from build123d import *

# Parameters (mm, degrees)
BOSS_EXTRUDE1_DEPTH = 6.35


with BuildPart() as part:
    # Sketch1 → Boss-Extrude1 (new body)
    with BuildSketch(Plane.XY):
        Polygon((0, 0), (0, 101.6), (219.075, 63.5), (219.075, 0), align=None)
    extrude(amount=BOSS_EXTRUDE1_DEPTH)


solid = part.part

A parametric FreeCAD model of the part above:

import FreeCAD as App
import Part
import Sketcher
from FreeCAD import Vector
Q = App.Units.Quantity

doc = App.newDocument("Part")
body = doc.addObject("PartDesign::Body", "Body")

# Sketch on XY plane
sketch1 = body.newObject("Sketcher::SketchObject", "Sketch")
sketch1.AttachmentSupport = (doc.getObject("XY_Plane"), [""])
sketch1.MapMode = "FlatFace"
sketch1.addGeometry([
    Part.LineSegment(Vector(0, 102, 0), Vector(0, 0, 0)),
    Part.LineSegment(Vector(0, 0, 0), Vector(219, 0, 0)),
    Part.LineSegment(Vector(219, 0, 0), Vector(219, 64, 0)),
    Part.LineSegment(Vector(219, 64, 0), Vector(0, 102, 0)),
], False)
sketch1.addConstraint([
    Sketcher.Constraint("Coincident", 0, 2, 1, 1),
    Sketcher.Constraint("Coincident", 1, 2, 2, 1),
    Sketcher.Constraint("Coincident", 2, 2, 3, 1),
    Sketcher.Constraint("Coincident", 3, 2, 0, 1),
    Sketcher.Constraint("Vertical", 0),
    Sketcher.Constraint("Horizontal", 1),
    Sketcher.Constraint("Vertical", 2),
    Sketcher.Constraint("Coincident", 0, 2, -1, 1),
    Sketcher.Constraint("DistanceY", 0, 2, 0, 1, Q("4 in")),
    Sketcher.Constraint("DistanceY", 2, 1, 2, 2, Q("2.5 in")),
    Sketcher.Constraint("DistanceX", 1, 1, 1, 2, Q("8.625 in")),
])
pad1 = body.newObject("PartDesign::Pad", "Pad")
pad1.Profile = sketch1
pad1.Length = Q("0.25 in")

doc.recompute()
